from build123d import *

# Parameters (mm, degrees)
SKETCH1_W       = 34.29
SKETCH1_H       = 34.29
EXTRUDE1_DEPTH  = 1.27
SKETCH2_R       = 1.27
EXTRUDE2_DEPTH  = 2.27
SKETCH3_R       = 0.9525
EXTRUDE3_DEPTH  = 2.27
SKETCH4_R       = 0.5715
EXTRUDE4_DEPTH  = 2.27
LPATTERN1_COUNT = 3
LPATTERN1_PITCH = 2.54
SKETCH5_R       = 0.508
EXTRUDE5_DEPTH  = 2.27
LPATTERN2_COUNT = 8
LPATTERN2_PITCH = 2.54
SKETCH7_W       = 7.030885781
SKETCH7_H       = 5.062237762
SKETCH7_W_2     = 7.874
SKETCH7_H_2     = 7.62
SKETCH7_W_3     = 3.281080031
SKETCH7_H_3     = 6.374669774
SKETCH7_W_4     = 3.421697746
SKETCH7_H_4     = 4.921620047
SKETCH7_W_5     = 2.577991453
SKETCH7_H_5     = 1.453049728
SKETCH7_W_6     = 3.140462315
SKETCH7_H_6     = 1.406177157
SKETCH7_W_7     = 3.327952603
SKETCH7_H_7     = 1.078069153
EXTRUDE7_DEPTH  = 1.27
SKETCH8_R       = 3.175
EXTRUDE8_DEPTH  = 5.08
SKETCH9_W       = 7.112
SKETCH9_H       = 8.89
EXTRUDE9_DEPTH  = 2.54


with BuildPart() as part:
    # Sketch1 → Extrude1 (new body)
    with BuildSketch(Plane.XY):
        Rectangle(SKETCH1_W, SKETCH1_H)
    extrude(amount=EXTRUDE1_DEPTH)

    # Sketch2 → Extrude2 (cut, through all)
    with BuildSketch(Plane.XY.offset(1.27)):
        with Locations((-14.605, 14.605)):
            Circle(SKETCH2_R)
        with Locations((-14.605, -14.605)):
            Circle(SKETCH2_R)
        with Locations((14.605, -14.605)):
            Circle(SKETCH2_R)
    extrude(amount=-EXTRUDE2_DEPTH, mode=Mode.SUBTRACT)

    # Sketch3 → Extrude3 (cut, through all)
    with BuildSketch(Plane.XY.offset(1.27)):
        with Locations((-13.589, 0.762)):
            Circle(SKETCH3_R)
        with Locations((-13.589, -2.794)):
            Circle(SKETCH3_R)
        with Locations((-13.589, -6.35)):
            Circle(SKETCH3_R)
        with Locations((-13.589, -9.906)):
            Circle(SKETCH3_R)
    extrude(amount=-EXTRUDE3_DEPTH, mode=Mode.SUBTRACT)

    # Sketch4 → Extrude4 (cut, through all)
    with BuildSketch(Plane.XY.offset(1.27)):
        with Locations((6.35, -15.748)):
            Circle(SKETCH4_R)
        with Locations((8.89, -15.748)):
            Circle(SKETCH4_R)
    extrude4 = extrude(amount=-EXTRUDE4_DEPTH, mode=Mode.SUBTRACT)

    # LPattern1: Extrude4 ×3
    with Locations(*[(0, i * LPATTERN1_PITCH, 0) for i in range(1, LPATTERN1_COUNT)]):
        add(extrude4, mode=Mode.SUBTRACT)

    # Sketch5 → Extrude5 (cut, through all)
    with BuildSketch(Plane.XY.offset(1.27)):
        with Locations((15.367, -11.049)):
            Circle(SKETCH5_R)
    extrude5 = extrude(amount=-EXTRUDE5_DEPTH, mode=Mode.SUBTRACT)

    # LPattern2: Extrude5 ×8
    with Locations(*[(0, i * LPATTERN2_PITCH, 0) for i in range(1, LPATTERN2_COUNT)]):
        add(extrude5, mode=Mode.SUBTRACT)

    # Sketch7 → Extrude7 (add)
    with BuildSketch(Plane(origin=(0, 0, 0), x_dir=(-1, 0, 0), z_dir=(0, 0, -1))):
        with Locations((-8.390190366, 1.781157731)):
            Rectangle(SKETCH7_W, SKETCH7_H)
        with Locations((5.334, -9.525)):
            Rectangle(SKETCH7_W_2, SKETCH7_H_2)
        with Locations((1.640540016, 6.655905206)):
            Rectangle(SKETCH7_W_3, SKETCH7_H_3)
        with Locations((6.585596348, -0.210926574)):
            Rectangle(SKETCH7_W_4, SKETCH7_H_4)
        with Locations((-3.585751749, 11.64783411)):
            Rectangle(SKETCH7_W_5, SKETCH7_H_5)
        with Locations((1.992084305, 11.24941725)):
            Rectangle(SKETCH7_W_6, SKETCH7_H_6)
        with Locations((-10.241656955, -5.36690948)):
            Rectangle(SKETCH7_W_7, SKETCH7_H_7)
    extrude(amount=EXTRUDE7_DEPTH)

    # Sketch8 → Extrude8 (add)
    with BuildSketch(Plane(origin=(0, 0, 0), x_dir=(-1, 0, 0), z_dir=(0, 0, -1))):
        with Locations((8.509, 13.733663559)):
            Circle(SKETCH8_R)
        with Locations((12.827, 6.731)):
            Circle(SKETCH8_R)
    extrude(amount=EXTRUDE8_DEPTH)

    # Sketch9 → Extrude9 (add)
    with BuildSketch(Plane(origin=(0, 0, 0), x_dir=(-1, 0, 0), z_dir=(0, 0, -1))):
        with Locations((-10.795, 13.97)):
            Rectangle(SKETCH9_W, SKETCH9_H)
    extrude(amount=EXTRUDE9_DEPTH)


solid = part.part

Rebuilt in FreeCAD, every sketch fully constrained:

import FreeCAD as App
import Part
import Sketcher

V = App.Vector
Q = App.Units.Quantity

doc = App.newDocument("Part")
body = doc.addObject("PartDesign::Body", "Body")

sketch1 = body.newObject("Sketcher::SketchObject", "Sketch")
sketch1.AttachmentSupport = (doc.getObject("XY_Plane"), [""])
sketch1.MapMode = "FlatFace"
sketch1.addGeometry(Part.LineSegment(V(-17.145, 17.145, 0), V(-17.145, -17.145, 0)), False)
sketch1.addGeometry(Part.LineSegment(V(-17.145, -17.145, 0), V(17.145, -17.145, 0)), False)
sketch1.addGeometry(Part.LineSegment(V(17.145, -17.145, 0), V(17.145, 17.145, 0)), False)
sketch1.addGeometry(Part.LineSegment(V(17.145, 17.145, 0), V(-17.145, 17.145, 0)), False)
sketch1.addConstraint(Sketcher.Constraint("Coincident", 0, 2, 1, 1))
sketch1.addConstraint(Sketcher.Constraint("Coincident", 1, 2, 2, 1))
sketch1.addConstraint(Sketcher.Constraint("Coincident", 2, 2, 3, 1))
sketch1.addConstraint(Sketcher.Constraint("Coincident", 3, 2, 0, 1))
sketch1.addConstraint(Sketcher.Constraint("Vertical", 0))
sketch1.addConstraint(Sketcher.Constraint("Horizontal", 1))
sketch1.addConstraint(Sketcher.Constraint("Vertical", 2))
sketch1.addConstraint(Sketcher.Constraint("Horizontal", 3))
sketch1.addConstraint(Sketcher.Constraint("Symmetric", 0, 2, 2, 2, -1, 1))
sketch1.addConstraint(Sketcher.Constraint("Equal", 3, 0))
sketch1.addConstraint(Sketcher.Constraint("DistanceX", 1, 1, 1, 2, Q("1.35 in")))
pad1 = body.newObject("PartDesign::Pad", "Pad")
pad1.Profile = sketch1
pad1.Length = Q("0.05 in")

sketch2 = body.newObject("Sketcher::SketchObject", "Sketch001")
sketch2.AttachmentSupport = (doc.getObject("XY_Plane"), [""])
sketch2.MapMode = "FlatFace"
sketch2.AttachmentOffset = App.Placement(V(0, 0, 0.05 * 25.4), App.Rotation())
sketch2.addGeometry(Part.Circle(V(-14.605, 14.605, 0), V(0, 0, 1), 1.27), False)
sketch2.addGeometry(Part.Circle(V(-14.605, -14.605, 0), V(0, 0, 1), 1.27), False)
sketch2.addGeometry(Part.Circle(V(14.605, -14.605, 0), V(0, 0, 1), 1.27), False)
sketch2.addConstraint(Sketcher.Constraint("Equal", 0, 1))
sketch2.addConstraint(Sketcher.Constraint("Equal", 1, 2))
sketch2.addConstraint(Sketcher.Constraint("Symmetric", 0, 3, 2, 3, -1, 1))
sketch2.addConstraint(Sketcher.Constraint("Symmetric", 1, 3, 2, 3, -2))
sketch2.addConstraint(Sketcher.Constraint("Diameter", 0, Q("0.1 in")))
sketch2.addConstraint(Sketcher.Constraint("DistanceY", 1, 3, 0, 3, Q("1.15 in")))
sketch2.addConstraint(Sketcher.Constraint("DistanceX", 1, 3, 2, 3, Q("1.15 in")))
pocket1 = body.newObject("PartDesign::Pocket", "Pocket")
pocket1.Profile = sketch2
pocket1.Type = "ThroughAll"

sketch3 = body.newObject("Sketcher::SketchObject", "Sketch002")
sketch3.AttachmentSupport = (doc.getObject("XY_Plane"), [""])
sketch3.MapMode = "FlatFace"
sketch3.AttachmentOffset = App.Placement(V(0, 0, 0.05 * 25.4), App.Rotation())
sketch3.addGeometry(Part.Circle(V(-13.589, 0.762, 0), V(0, 0, 1), 0.9525), False)
sketch3.addGeometry(Part.Circle(V(-13.589, -2.794, 0), V(0, 0, 1), 0.9525), False)
sketch3.addGeometry(Part.Circle(V(-13.589, -6.35, 0), V(0, 0, 1), 0.9525), False)
sketch3.addGeometry(Part.Circle(V(-13.589, -9.906, 0), V(0, 0, 1), 0.9525), False)
sketch3.addConstraint(Sketcher.Constraint("Equal", 0, 1))
sketch3.addConstraint(Sketcher.Constraint("Equal", 1, 2))
sketch3.addConstraint(Sketcher.Constraint("Equal", 2, 3))
sketch3.addConstraint(Sketcher.Constraint("Vertical", 0, 3, 1, 3))
sketch3.addConstraint(Sketcher.Constraint("Vertical", 1, 3, 2, 3))
sketch3.addConstraint(Sketcher.Constraint("Vertical", 2, 3, 3, 3))
sketch3.addConstraint(Sketcher.Constraint("Diameter", 0, Q("0.075 in")))
sketch3.addConstraint(Sketcher.Constraint("DistanceY", -1, 1, 0, 3, Q("0.03 in")))
sketch3.addConstraint(Sketcher.Constraint("DistanceY", 1, 3, -1, 1, Q("0.11 in")))
sketch3.addConstraint(Sketcher.Constraint("DistanceY", 2, 3, -1, 1, Q("0.25 in")))
sketch3.addConstraint(Sketcher.Constraint("DistanceY", 3, 3, -1, 1, Q("0.39 in")))
sketch3.addConstraint(Sketcher.Constraint("DistanceX", 0, 3, -1, 1, Q("0.535 in")))
pocket2 = body.newObject("PartDesign::Pocket", "Pocket001")
pocket2.Profile = sketch3
pocket2.Type = "ThroughAll"

sketch4 = body.newObject("Sketcher::SketchObject", "Sketch003")
sketch4.AttachmentSupport = (doc.getObject("XY_Plane"), [""])
sketch4.MapMode = "FlatFace"
sketch4.AttachmentOffset = App.Placement(V(0, 0, 0.05 * 25.4), App.Rotation())
sketch4.addGeometry(Part.Circle(V(6.35, -15.748, 0), V(0, 0, 1), 0.5715), False)
sketch4.addGeometry(Part.Circle(V(8.89, -15.748, 0), V(0, 0, 1), 0.5715), False)
sketch4.addConstraint(Sketcher.Constraint("Equal", 0, 1))
sketch4.addConstraint(Sketcher.Constraint("Horizontal", 0, 3, 1, 3))
sketch4.addConstraint(Sketcher.Constraint("Diameter", 0, Q("0.045 in")))
sketch4.addConstraint(Sketcher.Constraint("DistanceX", 0, 3, 1, 3, Q("0.1 in")))
sketch4.addConstraint(Sketcher.Constraint("DistanceX", -1, 1, 0, 3, Q("0.25 in")))
sketch4.addConstraint(Sketcher.Constraint("DistanceY", 0, 3, -1, 1, Q("0.62 in")))
pocket3 = body.newObject("PartDesign::Pocket", "Pocket002")
pocket3.Profile = sketch4
pocket3.Type = "ThroughAll"
doc.recompute()

linearpattern = body.newObject("PartDesign::LinearPattern", "LinearPattern")
linearpattern.Originals = [pocket3]
linearpattern.Direction = (doc.getObject("Y_Axis"), [""])
linearpattern.Mode = "offset"
linearpattern.Offset = Q("0.1 in")
linearpattern.Occurrences = 3
body.Tip = linearpattern

sketch5 = body.newObject("Sketcher::SketchObject", "Sketch004")
sketch5.AttachmentSupport = (doc.getObject("XY_Plane"), [""])
sketch5.MapMode = "FlatFace"
sketch5.AttachmentOffset = App.Placement(V(0, 0, 0.05 * 25.4), App.Rotation())
sketch5.addGeometry(Part.Circle(V(15.367, -11.049, 0), V(0, 0, 1), 0.508), False)
sketch5.addConstraint(Sketcher.Constraint("Diameter", 0, Q("0.04 in")))
sketch5.addConstraint(Sketcher.Constraint("DistanceX", -1, 1, 0, 3, Q("0.605 in")))
sketch5.addConstraint(Sketcher.Constraint("DistanceY", 0, 3, -1, 1, Q("0.435 in")))
pocket4 = body.newObject("PartDesign::Pocket", "Pocket003")
pocket4.Profile = sketch5
pocket4.Type = "ThroughAll"
doc.recompute()

linearpattern2 = body.newObject("PartDesign::LinearPattern", "LinearPattern001")
linearpattern2.Originals = [pocket4]
linearpattern2.Direction = (doc.getObject("Y_Axis"), [""])
linearpattern2.Mode = "offset"
linearpattern2.Offset = Q("0.1 in")
linearpattern2.Occurrences = 8
body.Tip = linearpattern2

sketch6 = body.newObject("Sketcher::SketchObject", "Sketch005")
sketch6.AttachmentSupport = (doc.getObject("XY_Plane"), [""])
sketch6.MapMode = "FlatFace"
sketch6.addGeometry(Part.LineSegment(V(11.905633, 4.312277, 0), V(11.905633, -0.749961, 0)), False)
sketch6.addGeometry(Part.LineSegment(V(11.905633, -0.749961, 0), V(4.874747, -0.749961, 0)), False)
sketch6.addGeometry(Part.LineSegment(V(4.874747, -0.749961, 0), V(4.874747, 4.312277, 0)), False)
sketch6.addGeometry(Part.LineSegment(V(4.874747, 4.312277, 0), V(11.905633, 4.312277, 0)), False)
sketch6.addGeometry(Part.LineSegment(V(-1.397, -5.715, 0), V(-1.397, -13.335, 0)), False)
sketch6.addGeometry(Part.LineSegment(V(-1.397, -13.335, 0), V(-9.271, -13.335, 0)), False)
sketch6.addGeometry(Part.LineSegment(V(-9.271, -13.335, 0), V(-9.271, -5.715, 0)), False)
sketch6.addGeometry(Part.LineSegment(V(-9.271, -5.715, 0), V(-1.397, -5.715, 0)), False)
sketch6.addGeometry(Part.LineSegment(V(0, 9.84324, 0), V(0, 3.46857, 0)), False)
sketch6.addGeometry(Part.LineSegment(V(0, 3.46857, 0), V(-3.28108, 3.46857, 0)), False)
sketch6.addGeometry(Part.LineSegment(V(-3.28108, 3.46857, 0), V(-3.28108, 9.84324, 0)), False)
sketch6.addGeometry(Part.LineSegment(V(-3.28108, 9.84324, 0), V(0, 9.84324, 0)), False)
sketch6.addGeometry(Part.LineSegment(V(-4.874747, 2.249883, 0), V(-4.874747, -2.671737, 0)), False)
sketch6.addGeometry(Part.LineSegment(V(-4.874747, -2.671737, 0), V(-8.296445, -2.671737, 0)), False)
sketch6.addGeometry(Part.LineSegment(V(-8.296445, -2.671737, 0), V(-8.296445, 2.249883, 0)), False)
sketch6.addGeometry(Part.LineSegment(V(-8.296445, 2.249883, 0), V(-4.874747, 2.249883, 0)), False)
sketch6.addGeometry(Part.LineSegment(V(4.874747, 12.374359, 0), V(4.874747, 10.921309, 0)), False)
sketch6.addGeometry(Part.LineSegment(V(4.874747, 10.921309, 0), V(2.296756, 10.921309, 0)), False)
sketch6.addGeometry(Part.LineSegment(V(2.296756, 10.921309, 0), V(2.296756, 12.374359, 0)), False)
sketch6.addGeometry(Part.LineSegment(V(2.296756, 12.374359, 0), V(4.874747, 12.374359, 0)), False)
sketch6.addGeometry(Part.LineSegment(V(-0.421853, 11.952506, 0), V(-0.421853, 10.546329, 0)), False)
sketch6.addGeometry(Part.LineSegment(V(-0.421853, 10.546329, 0), V(-3.562315, 10.546329, 0)), False)
sketch6.addGeometry(Part.LineSegment(V(-3.562315, 10.546329, 0), V(-3.562315, 11.952506, 0)), False)
sketch6.addGeometry(Part.LineSegment(V(-3.562315, 11.952506, 0), V(-0.421853, 11.952506, 0)), False)
sketch6.addGeometry(Part.LineSegment(V(11.905633, -4.827875, 0), V(11.905633, -5.905944, 0)), False)
sketch6.addGeometry(Part.LineSegment(V(11.905633, -5.905944, 0), V(8.577681, -5.905944, 0)), False)
sketch6.addGeometry(Part.LineSegment(V(8.577681, -5.905944, 0), V(8.577681, -4.827875, 0)), False)
sketch6.addGeometry(Part.LineSegment(V(8.577681, -4.827875, 0), V(11.905633, -4.827875, 0)), False)
sketch6.addConstraint(Sketcher.Constraint("Coincident", 0, 2, 1, 1))
sketch6.addConstraint(Sketcher.Constraint("Coincident", 1, 2, 2, 1))
sketch6.addConstraint(Sketcher.Constraint("Coincident", 2, 2, 3, 1))
sketch6.addConstraint(Sketcher.Constraint("Coincident", 3, 2, 0, 1))
sketch6.addConstraint(Sketcher.Constraint("Coincident", 4, 2, 5, 1))
sketch6.addConstraint(Sketcher.Constraint("Coincident", 5, 2, 6, 1))
sketch6.addConstraint(Sketcher.Constraint("Coincident", 6, 2, 7, 1))
sketch6.addConstraint(Sketcher.Constraint("Coincident", 7, 2, 4, 1))
sketch6.addConstraint(Sketcher.Constraint("Coincident", 8, 2, 9, 1))
sketch6.addConstraint(Sketcher.Constraint("Coincident", 9, 2, 10, 1))
sketch6.addConstraint(Sketcher.Constraint("Coincident", 10, 2, 11, 1))
sketch6.addConstraint(Sketcher.Constraint("Coincident", 11, 2, 8, 1))
sketch6.addConstraint(Sketcher.Constraint("Coincident", 12, 2, 13, 1))
sketch6.addConstraint(Sketcher.Constraint("Coincident", 13, 2, 14, 1))
sketch6.addConstraint(Sketcher.Constraint("Coincident", 14, 2, 15, 1))
sketch6.addConstraint(Sketcher.Constraint("Coincident", 15, 2, 12, 1))
sketch6.addConstraint(Sketcher.Constraint("Coincident", 16, 2, 17, 1))
sketch6.addConstraint(Sketcher.Constraint("Coincident", 17, 2, 18, 1))
sketch6.addConstraint(Sketcher.Constraint("Coincident", 18, 2, 19, 1))
sketch6.addConstraint(Sketcher.Constraint("Coincident", 19, 2, 16, 1))
sketch6.addConstraint(Sketcher.Constraint("Coincident", 20, 2, 21, 1))
sketch6.addConstraint(Sketcher.Constraint("Coincident", 21, 2, 22, 1))
sketch6.addConstraint(Sketcher.Constraint("Coincident", 22, 2, 23, 1))
sketch6.addConstraint(Sketcher.Constraint("Coincident", 23, 2, 20, 1))
sketch6.addConstraint(Sketcher.Constraint("Coincident", 24, 2, 25, 1))
sketch6.addConstraint(Sketcher.Constraint("Coincident", 25, 2, 26, 1))
sketch6.addConstraint(Sketcher.Constraint("Coincident", 26, 2, 27, 1))
sketch6.addConstraint(Sketcher.Constraint("Coincident", 27, 2, 24, 1))
sketch6.addConstraint(Sketcher.Constraint("Vertical", 0))
sketch6.addConstraint(Sketcher.Constraint("Horizontal", 1))
sketch6.addConstraint(Sketcher.Constraint("Vertical", 2))
sketch6.addConstraint(Sketcher.Constraint("Horizontal", 3))
sketch6.addConstraint(Sketcher.Constraint("Vertical", 4))
sketch6.addConstraint(Sketcher.Constraint("Horizontal", 5))
sketch6.addConstraint(Sketcher.Constraint("Vertical", 6))
sketch6.addConstraint(Sketcher.Constraint("Horizontal", 7))
sketch6.addConstraint(Sketcher.Constraint("Vertical", 8))
sketch6.addConstraint(Sketcher.Constraint("Horizontal", 9))
sketch6.addConstraint(Sketcher.Constraint("Vertical", 10))
sketch6.addConstraint(Sketcher.Constraint("Horizontal", 11))
sketch6.addConstraint(Sketcher.Constraint("Vertical", 12))
sketch6.addConstraint(Sketcher.Constraint("Horizontal", 13))
sketch6.addConstraint(Sketcher.Constraint("Vertical", 14))
sketch6.addConstraint(Sketcher.Constraint("Horizontal", 15))
sketch6.addConstraint(Sketcher.Constraint("Vertical", 16))
sketch6.addConstraint(Sketcher.Constraint("Horizontal", 17))
sketch6.addConstraint(Sketcher.Constraint("Vertical", 18))
sketch6.addConstraint(Sketcher.Constraint("Horizontal", 19))
sketch6.addConstraint(Sketcher.Constraint("Vertical", 20))
sketch6.addConstraint(Sketcher.Constraint("Horizontal", 21))
sketch6.addConstraint(Sketcher.Constraint("Vertical", 22))
sketch6.addConstraint(Sketcher.Constraint("Horizontal", 23))
sketch6.addConstraint(Sketcher.Constraint("Vertical", 24))
sketch6.addConstraint(Sketcher.Constraint("Horizontal", 25))
sketch6.addConstraint(Sketcher.Constraint("Vertical", 26))
sketch6.addConstraint(Sketcher.Constraint("Horizontal", 27))
sketch6.addConstraint(Sketcher.Constraint("PointOnObject", 8, 2, -2))
sketch6.addConstraint(Sketcher.Constraint("Vertical", 2, 2, 16, 2))
sketch6.addConstraint(Sketcher.Constraint("Vertical", 3, 2, 24, 2))
sketch6.addConstraint(Sketcher.Constraint("DistanceY", 4, 2, 4, 1, Q("0.3 in")))
sketch6.addConstraint(Sketcher.Constraint("DistanceX", 5, 2, 5, 1, Q("0.31 in")))
sketch6.addConstraint(Sketcher.Constraint("DistanceX", 4, 2, -1, 1, Q("0.055 in")))
sketch6.addConstraint(Sketcher.Constraint("DistanceY", 4, 2, -1, 1, Q("0.525 in")))
sketch6.addConstraint(Sketcher.Constraint("DistanceX", 10, 2, 17, 2, Q("0.2195998 in")))
sketch6.addConstraint(Sketcher.Constraint("DistanceX", 9, 2, 9, 1, 3.28108))
sketch6.addConstraint(Sketcher.Constraint("DistanceX", 17, 2, 17, 1, 2.577991))
sketch6.addConstraint(Sketcher.Constraint("DistanceY", 8, 2, 8, 1, 6.37467))
sketch6.addConstraint(Sketcher.Constraint("DistanceY", 12, 2, 12, 1, 4.92162))
sketch6.addConstraint(Sketcher.Constraint("DistanceY", 16, 2, 16, 1, 1.45305))
sketch6.addConstraint(Sketcher.Constraint("DistanceY", 24, 2, 24, 1, 1.078069))
sketch6.addConstraint(Sketcher.Constraint("DistanceY", 1, 2, 10, 2, 10.593201))
sketch6.addConstraint(Sketcher.Constraint("DistanceX", 20, 2, 16, 2, 5.296601))
sketch6.addConstraint(Sketcher.Constraint("DistanceX", 1, 2, 1, 1, 7.030886))
sketch6.addConstraint(Sketcher.Constraint("DistanceX", 13, 2, 13, 1, 3.421698))
sketch6.addConstraint(Sketcher.Constraint("DistanceX", 21, 2, 21, 1, 3.140462))
sketch6.addConstraint(Sketcher.Constraint("DistanceX", 25, 2, 25, 1, 3.327953))
sketch6.addConstraint(Sketcher.Constraint("DistanceY", 0, 2, 0, 1, 5.062238))
sketch6.addConstraint(Sketcher.Constraint("DistanceY", 20, 2, 20, 1, 1.406177))
sketch6.addConstraint(Sketcher.Constraint("DistanceY", 0, 2, -1, 1, 0.749961))
sketch6.addConstraint(Sketcher.Constraint("DistanceY", -1, 1, 16, 2, 10.921309))
sketch6.addConstraint(Sketcher.Constraint("DistanceY", -1, 1, 20, 2, 10.546329))
sketch6.addConstraint(Sketcher.Constraint("DistanceY", 24, 2, 3, 2, 10.218221))
sketch6.addConstraint(Sketcher.Constraint("DistanceX", 12, 2, -1, 1, 4.874747))
sketch6.addConstraint(Sketcher.Constraint("DistanceY", 12, 2, -1, 1, 2.671737))
pad2 = body.newObject("PartDesign::Pad", "Pad001")
pad2.Profile = sketch6
pad2.Length = Q("0.05 in")
pad2.Reversed = True

sketch7 = body.newObject("Sketcher::SketchObject", "Sketch006")
sketch7.AttachmentSupport = (doc.getObject("XY_Plane"), [""])
sketch7.MapMode = "FlatFace"
sketch7.addGeometry(Part.Circle(V(-8.509, 13.733664, 0), V(0, 0, 1), 3.175), False)
sketch7.addGeometry(Part.Circle(V(-12.827, 6.731, 0), V(0, 0, 1), 3.175), False)
sketch7.addConstraint(Sketcher.Constraint("Equal", 0, 1))
sketch7.addConstraint(Sketcher.Constraint("Diameter", 0, Q("0.25 in")))
sketch7.addConstraint(Sketcher.Constraint("DistanceX", 1, 3, 0, 3, Q("0.17 in")))
sketch7.addConstraint(Sketcher.Constraint("DistanceX", 0, 3, -1, 1, Q("0.335 in")))
sketch7.addConstraint(Sketcher.Constraint("DistanceY", -1, 1, 1, 3, Q("0.265 in")))
sketch7.addConstraint(Sketcher.Constraint("DistanceY", -1, 1, 0, 3, 13.733664))
pad3 = body.newObject("PartDesign::Pad", "Pad002")
pad3.Profile = sketch7
pad3.Length = Q("0.2 in")
pad3.Reversed = True

sketch8 = body.newObject("Sketcher::SketchObject", "Sketch007")
sketch8.AttachmentSupport = (doc.getObject("XY_Plane"), [""])
sketch8.MapMode = "FlatFace"
sketch8.addGeometry(Part.LineSegment(V(14.351, 18.415, 0), V(14.351, 9.525, 0)), False)
sketch8.addGeometry(Part.LineSegment(V(14.351, 9.525, 0), V(7.239, 9.525, 0)), False)
sketch8.addGeometry(Part.LineSegment(V(7.239, 9.525, 0), V(7.239, 18.415, 0)), False)
sketch8.addGeometry(Part.LineSegment(V(7.239, 18.415, 0), V(14.351, 18.415, 0)), False)
sketch8.addConstraint(Sketcher.Constraint("Coincident", 0, 2, 1, 1))
sketch8.addConstraint(Sketcher.Constraint("Coincident", 1, 2, 2, 1))
sketch8.addConstraint(Sketcher.Constraint("Coincident", 2, 2, 3, 1))
sketch8.addConstraint(Sketcher.Constraint("Coincident", 3, 2, 0, 1))
sketch8.addConstraint(Sketcher.Constraint("Vertical", 0))
sketch8.addConstraint(Sketcher.Constraint("Horizontal", 1))
sketch8.addConstraint(Sketcher.Constraint("Vertical", 2))
sketch8.addConstraint(Sketcher.Constraint("Horizontal", 3))
sketch8.addConstraint(Sketcher.Constraint("DistanceX", 1, 2, 1, 1, Q("0.28 in")))
sketch8.addConstraint(Sketcher.Constraint("DistanceY", 0, 2, 0, 1, Q("0.35 in")))
sketch8.addConstraint(Sketcher.Constraint("DistanceX", -1, 1, 0, 2, Q("0.565 in")))
sketch8.addConstraint(Sketcher.Constraint("DistanceY", -1, 1, 0, 2, Q("0.375 in")))
pad4 = body.newObject("PartDesign::Pad", "Pad003")
pad4.Profile = sketch8
pad4.Length = Q("0.1 in")
pad4.Reversed = True

doc.recompute()
